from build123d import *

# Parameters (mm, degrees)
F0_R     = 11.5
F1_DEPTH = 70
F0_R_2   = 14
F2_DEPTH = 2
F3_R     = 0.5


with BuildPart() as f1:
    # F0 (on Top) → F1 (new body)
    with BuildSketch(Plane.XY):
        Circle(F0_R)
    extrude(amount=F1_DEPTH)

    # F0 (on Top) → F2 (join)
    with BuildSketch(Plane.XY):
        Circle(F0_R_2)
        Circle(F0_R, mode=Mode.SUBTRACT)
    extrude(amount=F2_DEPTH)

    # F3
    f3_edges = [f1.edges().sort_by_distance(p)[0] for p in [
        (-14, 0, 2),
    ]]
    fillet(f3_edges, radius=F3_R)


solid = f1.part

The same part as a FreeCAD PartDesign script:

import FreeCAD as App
import Part
import Sketcher
from FreeCAD import Vector


def edges_at(feature, points):
    """Names of the edges that pass closest to the given points."""
    edges = feature.Shape.Edges
    near = lambda p: min(range(len(edges)), key=lambda i: edges[i].distToShape(Part.Vertex(*p))[0])
    return sorted({f"Edge{near(p) + 1}" for p in points})

doc = App.newDocument("Part")
body = doc.addObject("PartDesign::Body", "Body")

# Sketch on XY plane
sketch1 = body.newObject("Sketcher::SketchObject", "Sketch")
sketch1.AttachmentSupport = (doc.getObject("XY_Plane"), [""])
sketch1.MapMode = "FlatFace"
sketch1.addGeometry(Part.Circle(Vector(0, 0, 0), Vector(0, 0, 1), 12), False)
sketch1.addConstraint([
    Sketcher.Constraint("Coincident", 0, 3, -1, 1),
    Sketcher.Constraint("Diameter", 0, 23.0),
])
pad1 = body.newObject("PartDesign::Pad", "Pad")
pad1.Profile = sketch1
pad1.Length = 70

# Sketch on XY plane
sketch2 = body.newObject("Sketcher::SketchObject", "Sketch001")
sketch2.AttachmentSupport = (doc.getObject("XY_Plane"), [""])
sketch2.MapMode = "FlatFace"
sketch2.addGeometry([
    Part.Circle(Vector(0, 0, 0), Vector(0, 0, 1), 14),
    Part.Circle(Vector(0, 0, 0), Vector(0, 0, 1), 12),
], False)
sketch2.addConstraint([
    Sketcher.Constraint("Coincident", 0, 3, -1, 1),
    Sketcher.Constraint("Coincident", 1, 3, -1, 1),
    Sketcher.Constraint("Diameter", 0, 28.0),
    Sketcher.Constraint("Diameter", 1, 23.0),
])
pad2 = body.newObject("PartDesign::Pad", "Pad001")
pad2.Profile = sketch2
pad2.Length = 2
doc.recompute()

fillet = body.newObject("PartDesign::Fillet", "Fillet")
fillet.Base = (pad2, edges_at(pad2, [(-14, 0, 2)]))
fillet.Radius = 0.5

doc.recompute()
